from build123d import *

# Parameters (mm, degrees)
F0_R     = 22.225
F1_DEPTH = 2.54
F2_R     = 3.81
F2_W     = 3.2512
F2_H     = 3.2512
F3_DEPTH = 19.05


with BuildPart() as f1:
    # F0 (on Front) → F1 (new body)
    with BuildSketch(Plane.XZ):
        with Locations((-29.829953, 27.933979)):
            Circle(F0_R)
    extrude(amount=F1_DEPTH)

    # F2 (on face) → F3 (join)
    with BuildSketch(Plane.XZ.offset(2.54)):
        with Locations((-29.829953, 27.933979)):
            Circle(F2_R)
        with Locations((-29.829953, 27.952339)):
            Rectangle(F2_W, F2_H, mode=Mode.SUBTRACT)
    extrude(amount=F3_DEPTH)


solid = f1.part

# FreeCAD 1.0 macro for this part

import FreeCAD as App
import Part
import Sketcher
Q = App.Units.Quantity


def add_polygon(sketch, points):
    """Adds a closed chain of lines whose ends are joined by coincident constraints."""
    first, n = sketch.GeometryCount, len(points)
    for a, b in zip(points, points[1:] + points[:1]):
        sketch.addGeometry(Part.LineSegment(App.Vector(*a, 0), App.Vector(*b, 0)), False)
    for i in range(n):
        sketch.addConstraint(Sketcher.Constraint("Coincident", first + i, 2, first + (i + 1) % n, 1))

doc = App.newDocument("Part")
body = doc.addObject("PartDesign::Body", "Body")

# Sketch on XZ plane
sketch1 = doc.addObject("Sketcher::SketchObject", "Sketch")
body.addObject(sketch1)
sketch1.AttachmentSupport = (doc.XZ_Plane, [""])
sketch1.MapMode = "FlatFace"
sketch1.addGeometry(Part.Circle(App.Vector(-30, 28, 0), App.Vector(0, 0, 1), 22), False)
sketch1.addConstraint([
    Sketcher.Constraint("Diameter", 0, Q("1.75 in")),
    Sketcher.Constraint("DistanceY", -1, 1, 0, 3, Q("27.933979 mm")),
    Sketcher.Constraint("DistanceX", 0, 3, -1, 1, Q("29.829953 mm")),
])
pad1 = doc.addObject("PartDesign::Pad", "Pad")
body.addObject(pad1)
pad1.Profile = sketch1
pad1.Length = Q("0.1 in")

# Sketch on XZ plane
sketch2 = doc.addObject("Sketcher::SketchObject", "Sketch001")
body.addObject(sketch2)
sketch2.AttachmentSupport = (doc.XZ_Plane, [""])
sketch2.MapMode = "FlatFace"
sketch2.AttachmentOffset = App.Placement(App.Vector(0, 0, 0.1 * 25.4), App.Rotation())
sketch2.addGeometry(Part.Circle(App.Vector(-29.8, 27.9, 0), App.Vector(0, 0, 1), 3.8), False)  # 0
add_polygon(sketch2, [(-28.2, 26.3), (-31.5, 26.3), (-31.5, 29.6), (-28.2, 29.6)])  # lines 1-4
sketch2.addConstraint([
    Sketcher.Constraint("Horizontal", 1),
    Sketcher.Constraint("Vertical", 2),
    Sketcher.Constraint("Horizontal", 3),
    Sketcher.Constraint("Vertical", 4),
    Sketcher.Constraint("Equal", 3, 2),
    Sketcher.Constraint("Diameter", 0, Q("0.3 in")),
    Sketcher.Constraint("DistanceX", 1, 2, 1, 1, Q("0.128 in")),
    Sketcher.Constraint("DistanceX", 1, 2, 0, 3, Q("0.064 in")),
    Sketcher.Constraint("DistanceY", -1, 1, 0, 3, Q("27.933979 mm")),
    Sketcher.Constraint("DistanceY", -1, 1, 1, 2, Q("26.326739 mm")),
    Sketcher.Constraint("DistanceX", 0, 3, -1, 1, Q("29.829953 mm")),
])
pad2 = doc.addObject("PartDesign::Pad", "Pad001")
body.addObject(pad2)
pad2.Profile = sketch2
pad2.Length = Q("0.75 in")

doc.recompute()
